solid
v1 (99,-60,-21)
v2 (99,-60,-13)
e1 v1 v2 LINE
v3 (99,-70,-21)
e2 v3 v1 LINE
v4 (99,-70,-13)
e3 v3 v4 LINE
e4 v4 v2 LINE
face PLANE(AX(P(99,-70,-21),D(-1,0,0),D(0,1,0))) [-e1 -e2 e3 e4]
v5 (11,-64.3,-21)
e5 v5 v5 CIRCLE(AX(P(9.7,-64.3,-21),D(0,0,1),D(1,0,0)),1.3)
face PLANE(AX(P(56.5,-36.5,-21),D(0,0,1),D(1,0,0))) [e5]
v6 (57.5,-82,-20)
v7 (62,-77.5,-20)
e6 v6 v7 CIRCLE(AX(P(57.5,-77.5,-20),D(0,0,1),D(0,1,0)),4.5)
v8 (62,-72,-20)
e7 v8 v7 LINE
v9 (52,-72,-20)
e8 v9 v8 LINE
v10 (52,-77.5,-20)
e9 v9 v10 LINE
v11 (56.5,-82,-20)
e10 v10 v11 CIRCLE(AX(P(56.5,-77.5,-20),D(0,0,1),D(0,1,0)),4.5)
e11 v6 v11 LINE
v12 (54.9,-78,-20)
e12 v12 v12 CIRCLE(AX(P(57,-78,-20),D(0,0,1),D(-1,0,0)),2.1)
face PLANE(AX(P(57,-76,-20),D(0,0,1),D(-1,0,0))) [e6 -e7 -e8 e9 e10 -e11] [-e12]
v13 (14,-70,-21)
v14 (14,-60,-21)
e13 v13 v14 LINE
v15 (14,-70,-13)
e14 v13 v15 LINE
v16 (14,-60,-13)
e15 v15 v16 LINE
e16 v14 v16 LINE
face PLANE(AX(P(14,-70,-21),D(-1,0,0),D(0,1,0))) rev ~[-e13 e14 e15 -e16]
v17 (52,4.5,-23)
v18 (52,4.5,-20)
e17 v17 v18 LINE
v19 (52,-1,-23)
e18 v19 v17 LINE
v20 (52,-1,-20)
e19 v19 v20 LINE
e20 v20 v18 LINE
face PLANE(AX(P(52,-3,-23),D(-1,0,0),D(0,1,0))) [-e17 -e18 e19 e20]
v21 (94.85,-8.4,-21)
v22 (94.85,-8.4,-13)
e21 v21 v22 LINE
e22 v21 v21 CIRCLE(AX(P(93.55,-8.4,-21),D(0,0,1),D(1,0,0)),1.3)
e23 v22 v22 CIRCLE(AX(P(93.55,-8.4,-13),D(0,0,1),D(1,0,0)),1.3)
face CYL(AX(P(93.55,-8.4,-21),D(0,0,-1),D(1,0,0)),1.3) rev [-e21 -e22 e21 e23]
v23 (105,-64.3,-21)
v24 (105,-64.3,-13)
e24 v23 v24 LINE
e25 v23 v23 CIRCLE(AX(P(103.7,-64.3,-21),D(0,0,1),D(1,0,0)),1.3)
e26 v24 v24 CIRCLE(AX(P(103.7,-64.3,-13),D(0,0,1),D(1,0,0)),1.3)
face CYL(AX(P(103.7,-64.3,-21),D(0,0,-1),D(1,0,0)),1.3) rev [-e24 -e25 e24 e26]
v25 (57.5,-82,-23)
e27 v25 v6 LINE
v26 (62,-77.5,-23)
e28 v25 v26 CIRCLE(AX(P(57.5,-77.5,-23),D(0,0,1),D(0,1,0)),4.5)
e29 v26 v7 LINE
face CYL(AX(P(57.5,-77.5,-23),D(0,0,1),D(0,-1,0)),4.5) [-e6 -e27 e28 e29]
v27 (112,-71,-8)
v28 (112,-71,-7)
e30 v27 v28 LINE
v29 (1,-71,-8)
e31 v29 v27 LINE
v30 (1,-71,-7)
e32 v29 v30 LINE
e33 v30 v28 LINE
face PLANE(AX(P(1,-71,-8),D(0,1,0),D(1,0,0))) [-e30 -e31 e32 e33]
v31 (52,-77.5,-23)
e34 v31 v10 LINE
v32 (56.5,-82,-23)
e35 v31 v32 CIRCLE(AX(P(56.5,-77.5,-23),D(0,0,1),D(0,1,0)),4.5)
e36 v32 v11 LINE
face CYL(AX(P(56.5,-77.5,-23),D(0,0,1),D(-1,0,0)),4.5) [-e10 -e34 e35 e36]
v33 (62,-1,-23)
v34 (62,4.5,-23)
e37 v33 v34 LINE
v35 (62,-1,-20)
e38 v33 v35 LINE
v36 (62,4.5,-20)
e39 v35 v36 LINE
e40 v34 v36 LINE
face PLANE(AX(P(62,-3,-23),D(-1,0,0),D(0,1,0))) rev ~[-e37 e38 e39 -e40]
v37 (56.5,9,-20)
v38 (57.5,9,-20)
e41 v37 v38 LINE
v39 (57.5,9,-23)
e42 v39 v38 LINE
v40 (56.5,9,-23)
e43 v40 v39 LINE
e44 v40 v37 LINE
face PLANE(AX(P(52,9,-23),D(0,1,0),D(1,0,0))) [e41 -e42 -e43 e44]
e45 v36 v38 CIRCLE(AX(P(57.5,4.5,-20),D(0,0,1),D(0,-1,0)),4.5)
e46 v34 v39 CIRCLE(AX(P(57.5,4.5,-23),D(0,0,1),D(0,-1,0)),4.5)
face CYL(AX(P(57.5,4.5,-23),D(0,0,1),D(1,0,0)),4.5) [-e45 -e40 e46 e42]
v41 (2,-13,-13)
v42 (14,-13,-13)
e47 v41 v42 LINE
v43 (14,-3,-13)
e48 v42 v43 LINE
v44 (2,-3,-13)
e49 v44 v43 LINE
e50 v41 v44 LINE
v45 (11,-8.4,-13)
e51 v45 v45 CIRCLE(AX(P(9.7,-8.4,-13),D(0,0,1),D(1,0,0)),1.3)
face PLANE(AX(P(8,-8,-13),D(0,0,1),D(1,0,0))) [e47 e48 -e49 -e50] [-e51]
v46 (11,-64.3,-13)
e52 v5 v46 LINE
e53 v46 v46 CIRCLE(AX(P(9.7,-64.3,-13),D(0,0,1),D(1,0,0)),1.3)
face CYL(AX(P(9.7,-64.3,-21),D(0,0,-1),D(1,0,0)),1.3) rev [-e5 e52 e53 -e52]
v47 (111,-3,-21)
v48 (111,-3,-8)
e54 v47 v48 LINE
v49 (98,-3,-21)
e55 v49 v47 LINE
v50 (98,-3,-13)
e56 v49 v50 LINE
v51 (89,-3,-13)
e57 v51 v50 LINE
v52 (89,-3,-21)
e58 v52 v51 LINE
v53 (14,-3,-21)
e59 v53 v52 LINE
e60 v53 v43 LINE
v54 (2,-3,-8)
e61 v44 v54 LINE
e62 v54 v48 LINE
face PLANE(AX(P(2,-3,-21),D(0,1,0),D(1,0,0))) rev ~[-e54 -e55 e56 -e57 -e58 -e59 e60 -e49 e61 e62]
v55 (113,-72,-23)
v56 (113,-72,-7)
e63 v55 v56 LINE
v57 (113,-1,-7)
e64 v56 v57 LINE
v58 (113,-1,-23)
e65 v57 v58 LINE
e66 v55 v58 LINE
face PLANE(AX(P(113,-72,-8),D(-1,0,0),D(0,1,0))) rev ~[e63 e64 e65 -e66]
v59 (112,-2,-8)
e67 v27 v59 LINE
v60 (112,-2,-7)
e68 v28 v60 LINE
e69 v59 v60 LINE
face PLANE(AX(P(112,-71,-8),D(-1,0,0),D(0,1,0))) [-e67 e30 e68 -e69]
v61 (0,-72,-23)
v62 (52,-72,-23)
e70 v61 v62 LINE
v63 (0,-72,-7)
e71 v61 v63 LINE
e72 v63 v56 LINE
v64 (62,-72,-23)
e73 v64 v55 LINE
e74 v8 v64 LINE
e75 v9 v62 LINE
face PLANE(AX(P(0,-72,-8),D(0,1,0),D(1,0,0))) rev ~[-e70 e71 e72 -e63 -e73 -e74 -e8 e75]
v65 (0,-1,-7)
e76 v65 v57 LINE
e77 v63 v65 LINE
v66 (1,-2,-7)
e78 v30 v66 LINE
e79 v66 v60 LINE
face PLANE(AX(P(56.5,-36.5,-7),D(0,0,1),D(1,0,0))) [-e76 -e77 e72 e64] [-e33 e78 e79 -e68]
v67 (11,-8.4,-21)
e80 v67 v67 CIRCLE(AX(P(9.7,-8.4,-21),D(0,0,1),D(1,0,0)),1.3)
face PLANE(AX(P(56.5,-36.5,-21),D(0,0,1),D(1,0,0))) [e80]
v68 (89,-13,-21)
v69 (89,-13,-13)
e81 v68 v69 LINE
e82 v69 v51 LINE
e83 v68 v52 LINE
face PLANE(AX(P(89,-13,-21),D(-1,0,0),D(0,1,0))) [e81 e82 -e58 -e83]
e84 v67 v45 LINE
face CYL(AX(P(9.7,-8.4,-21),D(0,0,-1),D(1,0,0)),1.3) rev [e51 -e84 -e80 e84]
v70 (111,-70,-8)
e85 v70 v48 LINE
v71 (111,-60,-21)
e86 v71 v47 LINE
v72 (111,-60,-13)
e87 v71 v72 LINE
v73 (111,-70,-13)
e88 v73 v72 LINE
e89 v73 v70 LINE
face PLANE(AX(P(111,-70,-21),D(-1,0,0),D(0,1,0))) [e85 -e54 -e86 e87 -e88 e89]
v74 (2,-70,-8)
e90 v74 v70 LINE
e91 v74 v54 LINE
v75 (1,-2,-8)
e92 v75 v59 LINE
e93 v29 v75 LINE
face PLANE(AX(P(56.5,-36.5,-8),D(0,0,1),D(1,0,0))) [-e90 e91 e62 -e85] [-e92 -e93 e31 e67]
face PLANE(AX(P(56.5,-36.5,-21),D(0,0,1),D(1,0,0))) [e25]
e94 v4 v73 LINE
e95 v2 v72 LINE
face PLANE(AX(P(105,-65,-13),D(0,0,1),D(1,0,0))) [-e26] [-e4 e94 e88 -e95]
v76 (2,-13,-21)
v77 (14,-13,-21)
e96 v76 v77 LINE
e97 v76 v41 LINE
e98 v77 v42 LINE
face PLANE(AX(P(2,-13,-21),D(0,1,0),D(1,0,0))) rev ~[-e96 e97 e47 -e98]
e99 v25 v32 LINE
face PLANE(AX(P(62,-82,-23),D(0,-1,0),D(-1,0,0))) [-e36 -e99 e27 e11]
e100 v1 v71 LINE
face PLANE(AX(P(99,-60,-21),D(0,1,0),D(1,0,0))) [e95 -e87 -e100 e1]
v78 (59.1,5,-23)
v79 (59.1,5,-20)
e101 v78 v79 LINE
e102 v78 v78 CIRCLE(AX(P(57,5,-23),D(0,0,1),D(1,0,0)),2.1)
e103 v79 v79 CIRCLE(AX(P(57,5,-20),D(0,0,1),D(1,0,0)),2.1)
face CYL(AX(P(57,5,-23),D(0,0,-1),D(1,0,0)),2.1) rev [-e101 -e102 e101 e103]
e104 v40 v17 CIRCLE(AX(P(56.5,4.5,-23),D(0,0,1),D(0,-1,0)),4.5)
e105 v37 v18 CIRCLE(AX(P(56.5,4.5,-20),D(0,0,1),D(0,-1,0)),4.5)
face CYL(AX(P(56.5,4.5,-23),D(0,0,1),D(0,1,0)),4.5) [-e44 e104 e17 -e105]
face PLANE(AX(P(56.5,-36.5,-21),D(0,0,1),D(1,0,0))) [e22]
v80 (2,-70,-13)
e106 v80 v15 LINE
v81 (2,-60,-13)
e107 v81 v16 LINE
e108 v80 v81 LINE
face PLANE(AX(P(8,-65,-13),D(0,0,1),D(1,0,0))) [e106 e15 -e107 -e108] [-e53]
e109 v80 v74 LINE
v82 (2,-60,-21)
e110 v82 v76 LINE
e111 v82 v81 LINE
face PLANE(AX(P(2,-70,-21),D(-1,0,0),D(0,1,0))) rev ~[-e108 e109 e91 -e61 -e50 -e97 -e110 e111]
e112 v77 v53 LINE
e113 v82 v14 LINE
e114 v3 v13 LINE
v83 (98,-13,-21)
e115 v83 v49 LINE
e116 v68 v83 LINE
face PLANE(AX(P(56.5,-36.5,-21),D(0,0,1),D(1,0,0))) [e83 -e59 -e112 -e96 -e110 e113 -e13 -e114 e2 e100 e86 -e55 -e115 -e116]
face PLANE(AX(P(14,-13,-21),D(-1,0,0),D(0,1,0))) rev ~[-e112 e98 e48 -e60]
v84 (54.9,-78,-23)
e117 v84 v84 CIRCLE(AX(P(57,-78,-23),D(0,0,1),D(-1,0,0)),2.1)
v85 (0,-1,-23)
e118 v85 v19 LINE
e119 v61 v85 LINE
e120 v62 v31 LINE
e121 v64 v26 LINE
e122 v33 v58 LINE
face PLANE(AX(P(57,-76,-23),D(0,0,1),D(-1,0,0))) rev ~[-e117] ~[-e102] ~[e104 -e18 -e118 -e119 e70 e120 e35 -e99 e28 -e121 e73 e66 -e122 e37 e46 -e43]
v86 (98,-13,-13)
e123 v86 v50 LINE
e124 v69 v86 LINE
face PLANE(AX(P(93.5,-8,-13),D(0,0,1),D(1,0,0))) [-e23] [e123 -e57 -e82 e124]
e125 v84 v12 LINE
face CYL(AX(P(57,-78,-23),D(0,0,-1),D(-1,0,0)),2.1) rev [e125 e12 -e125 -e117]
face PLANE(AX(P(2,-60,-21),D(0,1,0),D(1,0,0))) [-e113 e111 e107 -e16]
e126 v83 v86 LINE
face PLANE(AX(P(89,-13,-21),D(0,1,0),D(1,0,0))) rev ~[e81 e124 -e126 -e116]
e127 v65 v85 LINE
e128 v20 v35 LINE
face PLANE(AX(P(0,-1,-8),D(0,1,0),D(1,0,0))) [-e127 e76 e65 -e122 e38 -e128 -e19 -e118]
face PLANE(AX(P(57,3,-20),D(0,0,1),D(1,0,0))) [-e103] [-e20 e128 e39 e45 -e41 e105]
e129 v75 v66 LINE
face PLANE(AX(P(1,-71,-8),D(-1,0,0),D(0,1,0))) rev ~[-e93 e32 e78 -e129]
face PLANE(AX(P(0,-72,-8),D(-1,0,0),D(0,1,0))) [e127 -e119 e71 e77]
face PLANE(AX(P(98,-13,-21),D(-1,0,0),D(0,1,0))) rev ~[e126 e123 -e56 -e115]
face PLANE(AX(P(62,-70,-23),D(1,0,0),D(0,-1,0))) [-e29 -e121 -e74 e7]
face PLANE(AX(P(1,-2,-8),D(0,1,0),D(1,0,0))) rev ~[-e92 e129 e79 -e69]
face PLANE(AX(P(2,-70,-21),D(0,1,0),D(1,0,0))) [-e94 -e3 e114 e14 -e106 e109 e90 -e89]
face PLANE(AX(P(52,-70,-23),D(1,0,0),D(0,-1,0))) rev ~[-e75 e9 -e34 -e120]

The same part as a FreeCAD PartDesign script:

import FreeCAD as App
import Part
import Sketcher
from FreeCAD import Vector


def edges_at(feature, points):
    """Names of the edges that pass closest to the given points."""
    edges = feature.Shape.Edges
    near = lambda p: min(range(len(edges)), key=lambda i: edges[i].distToShape(Part.Vertex(*p))[0])
    return sorted({f"Edge{near(p) + 1}" for p in points})

doc = App.newDocument("Part")
body = doc.addObject("PartDesign::Body", "Body")

sketch1 = body.newObject("Sketcher::SketchObject", "Sketch")
sketch1.AttachmentSupport = (doc.getObject("XY_Plane"), [""])
sketch1.MapMode = "FlatFace"
sketch1.AttachmentOffset = App.Placement(Vector(0, 0, -23), App.Rotation())
sketch1.addGeometry(Part.Circle(Vector(5, 5, 0), Vector(0, 0, 1), 2.1), False)
sketch1.addConstraint([
    Sketcher.Constraint("Diameter", 0, 4.2),
    Sketcher.Constraint("DistanceX", -1, 1, 0, 3, 5.0),
    Sketcher.Constraint("DistanceY", -1, 1, 0, 3, 5.0),
])
pad1 = body.newObject("PartDesign::Pad", "Pad")
pad1.Profile = sketch1
pad1.Length = 3
body2 = doc.addObject("PartDesign::Body", "Body001")

sketch2 = body2.newObject("Sketcher::SketchObject", "Sketch001")
sketch2.AttachmentSupport = (doc.getObject("XY_Plane001"), [""])
sketch2.MapMode = "FlatFace"
sketch2.AttachmentOffset = App.Placement(Vector(0, 0, -23), App.Rotation())
sketch2.addGeometry([
    Part.LineSegment(Vector(0, 9, 0), Vector(0, -3, 0)),
    Part.LineSegment(Vector(0, -3, 0), Vector(10, -3, 0)),
    Part.LineSegment(Vector(10, -3, 0), Vector(10, 9, 0)),
    Part.LineSegment(Vector(10, 9, 0), Vector(0, 9, 0)),
], False)
sketch2.addConstraint([
    Sketcher.Constraint("Coincident", 0, 2, 1, 1),
    Sketcher.Constraint("Coincident", 1, 2, 2, 1),
    Sketcher.Constraint("Coincident", 2, 2, 3, 1),
    Sketcher.Constraint("Coincident", 3, 2, 0, 1),
    Sketcher.Constraint("Vertical", 0),
    Sketcher.Constraint("Horizontal", 1),
    Sketcher.Constraint("Vertical", 2),
    Sketcher.Constraint("Horizontal", 3),
    Sketcher.Constraint("PointOnObject", 0, 2, -2),
    Sketcher.Constraint("DistanceX", 1, 1, 1, 2, 10.0),
    Sketcher.Constraint("DistanceY", 0, 2, 0, 1, 12.0),
    Sketcher.Constraint("DistanceY", 0, 2, -1, 1, 3.0),
])
pad2 = body2.newObject("PartDesign::Pad", "Pad001")
pad2.Profile = sketch2
pad2.Length = 3
doc.recompute()

fillet = body2.newObject("PartDesign::Fillet", "Fillet")
fillet.Base = (pad2, edges_at(pad2, [(10, 9, -21.5)]))
fillet.Radius = 4.5
doc.recompute()

fillet2 = body2.newObject("PartDesign::Fillet", "Fillet001")
fillet2.Base = (fillet, edges_at(fillet, [(0, 9, -21.5)]))
fillet2.Radius = 4.5
doc.recompute()

boolean = body2.newObject("PartDesign::Boolean", "Boolean")
boolean.Type = "Cut"
boolean.addObjects([body])
body3 = doc.addObject("PartDesign::Body", "Body002")
doc.recompute()

body2.Placement = App.Placement(Vector(62, -73, 0), App.Rotation(Vector(0, 0, 1), 180))
boolean2 = body3.newObject("PartDesign::Boolean", "Boolean001")
boolean2.Type = "Fuse"
boolean2.addObjects([body2])
body4 = doc.addObject("PartDesign::Body", "Body003")

sketch3 = body4.newObject("Sketcher::SketchObject", "Sketch002")
sketch3.AttachmentSupport = (doc.getObject("XY_Plane003"), [""])
sketch3.MapMode = "FlatFace"
sketch3.AttachmentOffset = App.Placement(Vector(0, 0, -23), App.Rotation())
sketch3.addGeometry(Part.Circle(Vector(5, 5, 0), Vector(0, 0, 1), 2.1), False)
sketch3.addConstraint([
    Sketcher.Constraint("Diameter", 0, 4.2),
    Sketcher.Constraint("DistanceX", -1, 1, 0, 3, 5.0),
    Sketcher.Constraint("DistanceY", -1, 1, 0, 3, 5.0),
])
pad3 = body4.newObject("PartDesign::Pad", "Pad002")
pad3.Profile = sketch3
pad3.Length = 3
body5 = doc.addObject("PartDesign::Body", "Body004")

sketch4 = body5.newObject("Sketcher::SketchObject", "Sketch003")
sketch4.AttachmentSupport = (doc.getObject("XY_Plane004"), [""])
sketch4.MapMode = "FlatFace"
sketch4.AttachmentOffset = App.Placement(Vector(0, 0, -23), App.Rotation())
sketch4.addGeometry([
    Part.LineSegment(Vector(0, 9, 0), Vector(0, -3, 0)),
    Part.LineSegment(Vector(0, -3, 0), Vector(10, -3, 0)),
    Part.LineSegment(Vector(10, -3, 0), Vector(10, 9, 0)),
    Part.LineSegment(Vector(10, 9, 0), Vector(0, 9, 0)),
], False)
sketch4.addConstraint([
    Sketcher.Constraint("Coincident", 0, 2, 1, 1),
    Sketcher.Constraint("Coincident", 1, 2, 2, 1),
    Sketcher.Constraint("Coincident", 2, 2, 3, 1),
    Sketcher.Constraint("Coincident", 3, 2, 0, 1),
    Sketcher.Constraint("Vertical", 0),
    Sketcher.Constraint("Horizontal", 1),
    Sketcher.Constraint("Vertical", 2),
    Sketcher.Constraint("Horizontal", 3),
    Sketcher.Constraint("PointOnObject", 0, 2, -2),
    Sketcher.Constraint("DistanceX", 1, 1, 1, 2, 10.0),
    Sketcher.Constraint("DistanceY", 0, 2, 0, 1, 12.0),
    Sketcher.Constraint("DistanceY", 0, 2, -1, 1, 3.0),
])
pad4 = body5.newObject("PartDesign::Pad", "Pad003")
pad4.Profile = sketch4
pad4.Length = 3
doc.recompute()

fillet3 = body5.newObject("PartDesign::Fillet", "Fillet002")
fillet3.Base = (pad4, edges_at(pad4, [(10, 9, -21.5)]))
fillet3.Radius = 4.5
doc.recompute()

fillet4 = body5.newObject("PartDesign::Fillet", "Fillet003")
fillet4.Base = (fillet3, edges_at(fillet3, [(0, 9, -21.5)]))
fillet4.Radius = 4.5
doc.recompute()

boolean3 = body5.newObject("PartDesign::Boolean", "Boolean002")
boolean3.Type = "Cut"
boolean3.addObjects([body4])
body6 = doc.addObject("PartDesign::Body", "Body005")
doc.recompute()

body5.Placement = App.Placement(Vector(52, 0, 0), App.Rotation(Vector(0, 0, 1), 0))
boolean4 = body6.newObject("PartDesign::Boolean", "Boolean003")
boolean4.Type = "Fuse"
boolean4.addObjects([body5])
body7 = doc.addObject("PartDesign::Body", "Body006")

sketch5 = body7.newObject("Sketcher::SketchObject", "Sketch004")
sketch5.AttachmentSupport = (doc.getObject("XY_Plane006"), [""])
sketch5.MapMode = "FlatFace"
sketch5.AttachmentOffset = App.Placement(Vector(0, 0, -10), App.Rotation())
sketch5.addGeometry(Part.Circle(Vector(93.55, -8.4, 0), Vector(0, 0, 1), 1.3), False)
sketch5.addConstraint([
    Sketcher.Constraint("Diameter", 0, 2.6),
    Sketcher.Constraint("DistanceY", 0, 3, -1, 1, 8.4),
    Sketcher.Constraint("DistanceX", -1, 1, 0, 3, 93.55),
])
pad5 = body7.newObject("PartDesign::Pad", "Pad004")
pad5.Profile = sketch5
pad5.Length = 8
body8 = doc.addObject("PartDesign::Body", "Body007")

sketch6 = body8.newObject("Sketcher::SketchObject", "Sketch005")
sketch6.AttachmentSupport = (doc.getObject("XY_Plane007"), [""])
sketch6.MapMode = "FlatFace"
sketch6.AttachmentOffset = App.Placement(Vector(0, 0, -10), App.Rotation())
sketch6.addGeometry([
    Part.LineSegment(Vector(89, -3, 0), Vector(89, -13, 0)),
    Part.LineSegment(Vector(89, -13, 0), Vector(98, -13, 0)),
    Part.LineSegment(Vector(98, -13, 0), Vector(98, -3, 0)),
    Part.LineSegment(Vector(98, -3, 0), Vector(89, -3, 0)),
], False)
sketch6.addConstraint([
    Sketcher.Constraint("Coincident", 0, 2, 1, 1),
    Sketcher.Constraint("Coincident", 1, 2, 2, 1),
    Sketcher.Constraint("Coincident", 2, 2, 3, 1),
    Sketcher.Constraint("Coincident", 3, 2, 0, 1),
    Sketcher.Constraint("Vertical", 0),
    Sketcher.Constraint("Horizontal", 1),
    Sketcher.Constraint("Vertical", 2),
    Sketcher.Constraint("Horizontal", 3),
    Sketcher.Constraint("DistanceX", 1, 1, 1, 2, 9.0),
    Sketcher.Constraint("DistanceY", 0, 2, 0, 1, 10.0),
    Sketcher.Constraint("DistanceX", -1, 1, 0, 2, 89.0),
    Sketcher.Constraint("DistanceY", 0, 2, -1, 1, 13.0),
])
pad6 = body8.newObject("PartDesign::Pad", "Pad005")
pad6.Profile = sketch6
pad6.Length = 8
doc.recompute()

boolean5 = body8.newObject("PartDesign::Boolean", "Boolean004")
boolean5.Type = "Cut"
boolean5.addObjects([body7])
body9 = doc.addObject("PartDesign::Body", "Body008")

sketch7 = body9.newObject("Sketcher::SketchObject", "Sketch006")
sketch7.AttachmentSupport = (doc.getObject("XY_Plane008"), [""])
sketch7.MapMode = "FlatFace"
sketch7.AttachmentOffset = App.Placement(Vector(0, 0, -10), App.Rotation())
sketch7.addGeometry(Part.Circle(Vector(103.7, -64.3, 0), Vector(0, 0, 1), 1.3), False)
sketch7.addConstraint([
    Sketcher.Constraint("Diameter", 0, 2.6),
    Sketcher.Constraint("DistanceX", -1, 1, 0, 3, 103.7),
    Sketcher.Constraint("DistanceY", 0, 3, -1, 1, 64.3),
])
pad7 = body9.newObject("PartDesign::Pad", "Pad006")
pad7.Profile = sketch7
pad7.Length = 8
body10 = doc.addObject("PartDesign::Body", "Body009")

sketch8 = body10.newObject("Sketcher::SketchObject", "Sketch007")
sketch8.AttachmentSupport = (doc.getObject("XY_Plane009"), [""])
sketch8.MapMode = "FlatFace"
sketch8.AttachmentOffset = App.Placement(Vector(0, 0, -10), App.Rotation())
sketch8.addGeometry([
    Part.LineSegment(Vector(99, -60, 0), Vector(99, -70, 0)),
    Part.LineSegment(Vector(99, -70, 0), Vector(111, -70, 0)),
    Part.LineSegment(Vector(111, -70, 0), Vector(111, -60, 0)),
    Part.LineSegment(Vector(111, -60, 0), Vector(99, -60, 0)),
], False)
sketch8.addConstraint([
    Sketcher.Constraint("Coincident", 0, 2, 1, 1),
    Sketcher.Constraint("Coincident", 1, 2, 2, 1),
    Sketcher.Constraint("Coincident", 2, 2, 3, 1),
    Sketcher.Constraint("Coincident", 3, 2, 0, 1),
    Sketcher.Constraint("Vertical", 0),
    Sketcher.Constraint("Horizontal", 1),
    Sketcher.Constraint("Vertical", 2),
    Sketcher.Constraint("Horizontal", 3),
    Sketcher.Constraint("DistanceX", 1, 1, 1, 2, 12.0),
    Sketcher.Constraint("DistanceY", 0, 2, 0, 1, 10.0),
    Sketcher.Constraint("DistanceX", -1, 1, 0, 2, 99.0),
    Sketcher.Constraint("DistanceY", 0, 2, -1, 1, 70.0),
])
pad8 = body10.newObject("PartDesign::Pad", "Pad007")
pad8.Profile = sketch8
pad8.Length = 8
doc.recompute()

boolean6 = body10.newObject("PartDesign::Boolean", "Boolean005")
boolean6.Type = "Cut"
boolean6.addObjects([body9])
body11 = doc.addObject("PartDesign::Body", "Body010")

sketch9 = body11.newObject("Sketcher::SketchObject", "Sketch008")
sketch9.AttachmentSupport = (doc.getObject("XY_Plane010"), [""])
sketch9.MapMode = "FlatFace"
sketch9.AttachmentOffset = App.Placement(Vector(0, 0, -10), App.Rotation())
sketch9.addGeometry(Part.Circle(Vector(9.7, -64.3, 0), Vector(0, 0, 1), 1.3), False)
sketch9.addConstraint([
    Sketcher.Constraint("Diameter", 0, 2.6),
    Sketcher.Constraint("DistanceX", -1, 1, 0, 3, 9.7),
    Sketcher.Constraint("DistanceY", 0, 3, -1, 1, 64.3),
])
pad9 = body11.newObject("PartDesign::Pad", "Pad008")
pad9.Profile = sketch9
pad9.Length = 8
body12 = doc.addObject("PartDesign::Body", "Body011")

sketch10 = body12.newObject("Sketcher::SketchObject", "Sketch009")
sketch10.AttachmentSupport = (doc.getObject("XY_Plane011"), [""])
sketch10.MapMode = "FlatFace"
sketch10.AttachmentOffset = App.Placement(Vector(0, 0, -10), App.Rotation())
sketch10.addGeometry([
    Part.LineSegment(Vector(2, -60, 0), Vector(2, -70, 0)),
    Part.LineSegment(Vector(2, -70, 0), Vector(14, -70, 0)),
    Part.LineSegment(Vector(14, -70, 0), Vector(14, -60, 0)),
    Part.LineSegment(Vector(14, -60, 0), Vector(2, -60, 0)),
], False)
sketch10.addConstraint([
    Sketcher.Constraint("Coincident", 0, 2, 1, 1),
    Sketcher.Constraint("Coincident", 1, 2, 2, 1),
    Sketcher.Constraint("Coincident", 2, 2, 3, 1),
    Sketcher.Constraint("Coincident", 3, 2, 0, 1),
    Sketcher.Constraint("Vertical", 0),
    Sketcher.Constraint("Horizontal", 1),
    Sketcher.Constraint("Vertical", 2),
    Sketcher.Constraint("Horizontal", 3),
    Sketcher.Constraint("DistanceX", 1, 1, 1, 2, 12.0),
    Sketcher.Constraint("DistanceY", 0, 2, 0, 1, 10.0),
    Sketcher.Constraint("DistanceX", -1, 1, 0, 2, 2.0),
    Sketcher.Constraint("DistanceY", 0, 2, -1, 1, 70.0),
])
pad10 = body12.newObject("PartDesign::Pad", "Pad009")
pad10.Profile = sketch10
pad10.Length = 8
doc.recompute()

boolean7 = body12.newObject("PartDesign::Boolean", "Boolean006")
boolean7.Type = "Cut"
boolean7.addObjects([body11])
body13 = doc.addObject("PartDesign::Body", "Body012")

sketch11 = body13.newObject("Sketcher::SketchObject", "Sketch010")
sketch11.AttachmentSupport = (doc.getObject("XY_Plane012"), [""])
sketch11.MapMode = "FlatFace"
sketch11.AttachmentOffset = App.Placement(Vector(0, 0, -10), App.Rotation())
sketch11.addGeometry(Part.Circle(Vector(9.7, -8.4, 0), Vector(0, 0, 1), 1.3), False)
sketch11.addConstraint([
    Sketcher.Constraint("Diameter", 0, 2.6),
    Sketcher.Constraint("DistanceX", -1, 1, 0, 3, 9.7),
    Sketcher.Constraint("DistanceY", 0, 3, -1, 1, 8.4),
])
pad11 = body13.newObject("PartDesign::Pad", "Pad010")
pad11.Profile = sketch11
pad11.Length = 8
body14 = doc.addObject("PartDesign::Body", "Body013")

sketch12 = body14.newObject("Sketcher::SketchObject", "Sketch011")
sketch12.AttachmentSupport = (doc.getObject("XY_Plane013"), [""])
sketch12.MapMode = "FlatFace"
sketch12.AttachmentOffset = App.Placement(Vector(0, 0, -10), App.Rotation())
sketch12.addGeometry([
    Part.LineSegment(Vector(2, -3, 0), Vector(2, -13, 0)),
    Part.LineSegment(Vector(2, -13, 0), Vector(14, -13, 0)),
    Part.LineSegment(Vector(14, -13, 0), Vector(14, -3, 0)),
    Part.LineSegment(Vector(14, -3, 0), Vector(2, -3, 0)),
], False)
sketch12.addConstraint([
    Sketcher.Constraint("Coincident", 0, 2, 1, 1),
    Sketcher.Constraint("Coincident", 1, 2, 2, 1),
    Sketcher.Constraint("Coincident", 2, 2, 3, 1),
    Sketcher.Constraint("Coincident", 3, 2, 0, 1),
    Sketcher.Constraint("Vertical", 0),
    Sketcher.Constraint("Horizontal", 1),
    Sketcher.Constraint("Vertical", 2),
    Sketcher.Constraint("Horizontal", 3),
    Sketcher.Constraint("DistanceX", 1, 1, 1, 2, 12.0),
    Sketcher.Constraint("DistanceY", 0, 2, 0, 1, 10.0),
    Sketcher.Constraint("DistanceX", -1, 1, 0, 2, 2.0),
    Sketcher.Constraint("DistanceY", 0, 2, -1, 1, 13.0),
])
pad12 = body14.newObject("PartDesign::Pad", "Pad011")
pad12.Profile = sketch12
pad12.Length = 8
doc.recompute()

boolean8 = body14.newObject("PartDesign::Boolean", "Boolean007")
boolean8.Type = "Cut"
boolean8.addObjects([body13])
body15 = doc.addObject("PartDesign::Body", "Body014")

sketch13 = body15.newObject("Sketcher::SketchObject", "Sketch012")
sketch13.AttachmentSupport = (doc.getObject("XY_Plane014"), [""])
sketch13.MapMode = "FlatFace"
sketch13.AttachmentOffset = App.Placement(Vector(0, 0, 3), App.Rotation())
sketch13.addGeometry([
    Part.LineSegment(Vector(1, -2, 0), Vector(1, -71, 0)),
    Part.LineSegment(Vector(1, -71, 0), Vector(112, -71, 0)),
    Part.LineSegment(Vector(112, -71, 0), Vector(112, -2, 0)),
    Part.LineSegment(Vector(112, -2, 0), Vector(1, -2, 0)),
], False)
sketch13.addConstraint([
    Sketcher.Constraint("Coincident", 0, 2, 1, 1),
    Sketcher.Constraint("Coincident", 1, 2, 2, 1),
    Sketcher.Constraint("Coincident", 2, 2, 3, 1),
    Sketcher.Constraint("Coincident", 3, 2, 0, 1),
    Sketcher.Constraint("Vertical", 0),
    Sketcher.Constraint("Horizontal", 1),
    Sketcher.Constraint("Vertical", 2),
    Sketcher.Constraint("Horizontal", 3),
    Sketcher.Constraint("DistanceX", 1, 1, 1, 2, 111.0),
    Sketcher.Constraint("DistanceY", 0, 2, 0, 1, 69.0),
    Sketcher.Constraint("DistanceX", -1, 1, 0, 2, 1.0),
    Sketcher.Constraint("DistanceY", 0, 2, -1, 1, 71.0),
])
pad13 = body15.newObject("PartDesign::Pad", "Pad012")
pad13.Profile = sketch13
pad13.Length = 1
body16 = doc.addObject("PartDesign::Body", "Body015")

sketch14 = body16.newObject("Sketcher::SketchObject", "Sketch013")
sketch14.AttachmentSupport = (doc.getObject("XY_Plane015"), [""])
sketch14.MapMode = "FlatFace"
sketch14.AttachmentOffset = App.Placement(Vector(0, 0, 3), App.Rotation())
sketch14.addGeometry([
    Part.LineSegment(Vector(0, -1, 0), Vector(0, -72, 0)),
    Part.LineSegment(Vector(0, -72, 0), Vector(113, -72, 0)),
    Part.LineSegment(Vector(113, -72, 0), Vector(113, -1, 0)),
    Part.LineSegment(Vector(113, -1, 0), Vector(0, -1, 0)),
], False)
sketch14.addConstraint([
    Sketcher.Constraint("Coincident", 0, 2, 1, 1),
    Sketcher.Constraint("Coincident", 1, 2, 2, 1),
    Sketcher.Constraint("Coincident", 2, 2, 3, 1),
    Sketcher.Constraint("Coincident", 3, 2, 0, 1),
    Sketcher.Constraint("Vertical", 0),
    Sketcher.Constraint("Horizontal", 1),
    Sketcher.Constraint("Vertical", 2),
    Sketcher.Constraint("Horizontal", 3),
    Sketcher.Constraint("PointOnObject", 0, 2, -2),
    Sketcher.Constraint("DistanceX", 1, 1, 1, 2, 113.0),
    Sketcher.Constraint("DistanceY", 0, 2, 0, 1, 71.0),
    Sketcher.Constraint("DistanceY", 0, 2, -1, 1, 72.0),
])
pad14 = body16.newObject("PartDesign::Pad", "Pad013")
pad14.Profile = sketch14
pad14.Length = 1
doc.recompute()

boolean9 = body16.newObject("PartDesign::Boolean", "Boolean008")
boolean9.Type = "Cut"
boolean9.addObjects([body15])
body17 = doc.addObject("PartDesign::Body", "Body016")

sketch15 = body17.newObject("Sketcher::SketchObject", "Sketch014")
sketch15.AttachmentSupport = (doc.getObject("XY_Plane016"), [""])
sketch15.MapMode = "FlatFace"
sketch15.AttachmentOffset = App.Placement(Vector(0, 0, -10), App.Rotation())
sketch15.addGeometry([
    Part.LineSegment(Vector(2, -3, 0), Vector(2, -70, 0)),
    Part.LineSegment(Vector(2, -70, 0), Vector(111, -70, 0)),
    Part.LineSegment(Vector(111, -70, 0), Vector(111, -3, 0)),
    Part.LineSegment(Vector(111, -3, 0), Vector(2, -3, 0)),
], False)
sketch15.addConstraint([
    Sketcher.Constraint("Coincident", 0, 2, 1, 1),
    Sketcher.Constraint("Coincident", 1, 2, 2, 1),
    Sketcher.Constraint("Coincident", 2, 2, 3, 1),
    Sketcher.Constraint("Coincident", 3, 2, 0, 1),
    Sketcher.Constraint("Vertical", 0),
    Sketcher.Constraint("Horizontal", 1),
    Sketcher.Constraint("Vertical", 2),
    Sketcher.Constraint("Horizontal", 3),
    Sketcher.Constraint("DistanceX", 1, 1, 1, 2, 109.0),
    Sketcher.Constraint("DistanceY", 0, 2, 0, 1, 67.0),
    Sketcher.Constraint("DistanceX", -1, 1, 0, 2, 2.0),
    Sketcher.Constraint("DistanceY", 0, 2, -1, 1, 70.0),
])
pad15 = body17.newObject("PartDesign::Pad", "Pad014")
pad15.Profile = sketch15
pad15.Length = 13
body18 = doc.addObject("PartDesign::Body", "Body017")

sketch16 = body18.newObject("Sketcher::SketchObject", "Sketch015")
sketch16.AttachmentSupport = (doc.getObject("XY_Plane017"), [""])
sketch16.MapMode = "FlatFace"
sketch16.AttachmentOffset = App.Placement(Vector(0, 0, -12), App.Rotation())
sketch16.addGeometry([
    Part.LineSegment(Vector(0, -1, 0), Vector(0, -72, 0)),
    Part.LineSegment(Vector(0, -72, 0), Vector(113, -72, 0)),
    Part.LineSegment(Vector(113, -72, 0), Vector(113, -1, 0)),
    Part.LineSegment(Vector(113, -1, 0), Vector(0, -1, 0)),
], False)
sketch16.addConstraint([
    Sketcher.Constraint("Coincident", 0, 2, 1, 1),
    Sketcher.Constraint("Coincident", 1, 2, 2, 1),
    Sketcher.Constraint("Coincident", 2, 2, 3, 1),
    Sketcher.Constraint("Coincident", 3, 2, 0, 1),
    Sketcher.Constraint("Vertical", 0),
    Sketcher.Constraint("Horizontal", 1),
    Sketcher.Constraint("Vertical", 2),
    Sketcher.Constraint("Horizontal", 3),
    Sketcher.Constraint("PointOnObject", 0, 2, -2),
    Sketcher.Constraint("DistanceX", 1, 1, 1, 2, 113.0),
    Sketcher.Constraint("DistanceY", 0, 2, 0, 1, 71.0),
    Sketcher.Constraint("DistanceY", 0, 2, -1, 1, 72.0),
])
pad16 = body18.newObject("PartDesign::Pad", "Pad015")
pad16.Profile = sketch16
pad16.Length = 15
doc.recompute()

boolean10 = body18.newObject("PartDesign::Boolean", "Boolean009")
boolean10.Type = "Cut"
boolean10.addObjects([body17])
doc.recompute()

boolean11 = body18.newObject("PartDesign::Boolean", "Boolean010")
boolean11.Type = "Fuse"
boolean11.addObjects([body16])
doc.recompute()

boolean12 = body18.newObject("PartDesign::Boolean", "Boolean011")
boolean12.Type = "Fuse"
boolean12.addObjects([body14])
doc.recompute()

boolean13 = body18.newObject("PartDesign::Boolean", "Boolean012")
boolean13.Type = "Fuse"
boolean13.addObjects([body12])
doc.recompute()

boolean14 = body18.newObject("PartDesign::Boolean", "Boolean013")
boolean14.Type = "Fuse"
boolean14.addObjects([body10])
doc.recompute()

boolean15 = body18.newObject("PartDesign::Boolean", "Boolean014")
boolean15.Type = "Fuse"
boolean15.addObjects([body8])
body19 = doc.addObject("PartDesign::Body", "Body018")
doc.recompute()

body18.Placement = App.Placement(Vector(0, 0, -11), App.Rotation(Vector(0, 0, 1), 0))
boolean16 = body19.newObject("PartDesign::Boolean", "Boolean015")
boolean16.Type = "Fuse"
boolean16.addObjects([body18])
doc.recompute()

boolean17 = body19.newObject("PartDesign::Boolean", "Boolean016")
boolean17.Type = "Fuse"
boolean17.addObjects([body6])
doc.recompute()

boolean18 = body19.newObject("PartDesign::Boolean", "Boolean017")
boolean18.Type = "Fuse"
boolean18.addObjects([body3])

doc.recompute()
